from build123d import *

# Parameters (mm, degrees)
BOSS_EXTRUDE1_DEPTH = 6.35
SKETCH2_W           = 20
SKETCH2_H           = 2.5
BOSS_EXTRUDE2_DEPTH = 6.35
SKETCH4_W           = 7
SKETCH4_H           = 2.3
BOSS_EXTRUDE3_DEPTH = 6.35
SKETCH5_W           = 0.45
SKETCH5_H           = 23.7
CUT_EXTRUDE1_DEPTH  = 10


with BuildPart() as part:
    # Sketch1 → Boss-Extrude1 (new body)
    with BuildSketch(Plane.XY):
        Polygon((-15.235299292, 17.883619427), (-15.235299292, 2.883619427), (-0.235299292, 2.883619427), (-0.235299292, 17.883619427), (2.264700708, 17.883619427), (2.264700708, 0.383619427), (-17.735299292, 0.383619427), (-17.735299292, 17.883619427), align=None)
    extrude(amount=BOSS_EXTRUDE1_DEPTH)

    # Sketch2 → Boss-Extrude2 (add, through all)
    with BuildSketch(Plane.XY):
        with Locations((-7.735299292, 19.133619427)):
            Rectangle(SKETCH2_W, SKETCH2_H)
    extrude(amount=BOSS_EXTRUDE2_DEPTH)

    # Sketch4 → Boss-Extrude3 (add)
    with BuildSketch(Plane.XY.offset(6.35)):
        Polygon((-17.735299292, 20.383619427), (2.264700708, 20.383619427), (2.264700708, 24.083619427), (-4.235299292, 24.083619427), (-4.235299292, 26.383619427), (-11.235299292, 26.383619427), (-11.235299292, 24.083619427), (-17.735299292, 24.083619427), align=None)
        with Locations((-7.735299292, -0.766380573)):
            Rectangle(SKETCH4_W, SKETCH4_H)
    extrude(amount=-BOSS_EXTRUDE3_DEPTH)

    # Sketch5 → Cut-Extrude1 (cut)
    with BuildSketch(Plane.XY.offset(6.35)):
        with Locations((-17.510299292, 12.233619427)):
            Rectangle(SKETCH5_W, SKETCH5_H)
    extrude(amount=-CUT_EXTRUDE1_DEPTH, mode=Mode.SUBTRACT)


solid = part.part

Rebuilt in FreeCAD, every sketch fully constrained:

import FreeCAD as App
import Part
import Sketcher
Q = App.Units.Quantity


def add_polygon(sketch, points):
    """Adds a closed chain of lines whose ends are joined by coincident constraints."""
    first, n = sketch.GeometryCount, len(points)
    for a, b in zip(points, points[1:] + points[:1]):
        sketch.addGeometry(Part.LineSegment(App.Vector(*a, 0), App.Vector(*b, 0)), False)
    for i in range(n):
        sketch.addConstraint(Sketcher.Constraint("Coincident", first + i, 2, first + (i + 1) % n, 1))

doc = App.newDocument("Part")
body = doc.addObject("PartDesign::Body", "Body")

sketch1 = body.newObject("Sketcher::SketchObject", "Sketch")
sketch1.AttachmentSupport = (doc.getObject("XY_Plane"), [""])
sketch1.MapMode = "FlatFace"
add_polygon(sketch1, [(-15.2, 2.9), (-15.2, 17.9), (-17.7, 17.9), (-17.7, 0.4), (2.3, 0.4), (2.3, 17.9), (-0.2, 17.9), (-0.2, 2.9)])
sketch1.addConstraint([
    Sketcher.Constraint("Vertical", 0),
    Sketcher.Constraint("Horizontal", 1),
    Sketcher.Constraint("Vertical", 2),
    Sketcher.Constraint("Horizontal", 3),
    Sketcher.Constraint("Vertical", 4),
    Sketcher.Constraint("Horizontal", 5),
    Sketcher.Constraint("Vertical", 6),
    Sketcher.Constraint("Horizontal", 7),
    Sketcher.Constraint("Horizontal", 1, 2, 4, 2),
    Sketcher.Constraint("Equal", 1, 5),
    Sketcher.Constraint("Equal", 7, 0),
    Sketcher.Constraint("DistanceX", 3, 1, 3, 2, Q("20 mm")),
    Sketcher.Constraint("DistanceX", 7, 2, 7, 1, Q("15 mm")),
    Sketcher.Constraint("DistanceY", 2, 2, 2, 1, Q("17.5 mm")),
    Sketcher.Constraint("DistanceX", 0, 2, -1, 1, Q("15.235299 mm")),
    Sketcher.Constraint("DistanceY", -1, 1, 0, 2, Q("17.883619 mm")),
])
pad1 = body.newObject("PartDesign::Pad", "Pad")
pad1.Profile = sketch1
pad1.Length = 6.35

sketch2 = body.newObject("Sketcher::SketchObject", "Sketch001")
sketch2.AttachmentSupport = (doc.getObject("XY_Plane"), [""])
sketch2.MapMode = "FlatFace"
add_polygon(sketch2, [(-17.7, 20.4), (-17.7, 17.9), (2.3, 17.9), (2.3, 20.4)])
sketch2.addConstraint([
    Sketcher.Constraint("Vertical", 0),
    Sketcher.Constraint("Horizontal", 1),
    Sketcher.Constraint("Vertical", 2),
    Sketcher.Constraint("Horizontal", 3),
    Sketcher.Constraint("DistanceX", 1, 1, 1, 2, Q("20 mm")),
    Sketcher.Constraint("DistanceY", 0, 2, 0, 1, Q("2.5 mm")),
    Sketcher.Constraint("DistanceX", 0, 2, -1, 1, Q("17.735299 mm")),
    Sketcher.Constraint("DistanceY", -1, 1, 0, 2, Q("17.883619 mm")),
])
pad2 = body.newObject("PartDesign::Pad", "Pad001")
pad2.Profile = sketch2
pad2.Length = 6.35

sketch3 = body.newObject("Sketcher::SketchObject", "Sketch002")
sketch3.AttachmentSupport = (doc.getObject("XY_Plane"), [""])
sketch3.MapMode = "FlatFace"
sketch3.AttachmentOffset = App.Placement(App.Vector(0, 0, 6.35), App.Rotation())
add_polygon(sketch3, [(-17.7, 20.4), (2.3, 20.4), (2.3, 24.1), (-4.2, 24.1), (-4.2, 26.4), (-11.2, 26.4), (-11.2, 24.1), (-17.7, 24.1)])
add_polygon(sketch3, [(-11.2, 0.4), (-11.2, -1.9), (-4.2, -1.9), (-4.2, 0.4)])
sketch3.addConstraint([
    Sketcher.Constraint("Horizontal", 0),
    Sketcher.Constraint("Vertical", 1),
    Sketcher.Constraint("Horizontal", 2),
    Sketcher.Constraint("Vertical", 3),
    Sketcher.Constraint("Horizontal", 4),
    Sketcher.Constraint("Vertical", 5),
    Sketcher.Constraint("Horizontal", 6),
    Sketcher.Constraint("Vertical", 7),
    Sketcher.Constraint("Vertical", 8),
    Sketcher.Constraint("Horizontal", 9),
    Sketcher.Constraint("Vertical", 10),
    Sketcher.Constraint("Horizontal", 11),
    Sketcher.Constraint("Horizontal", 2, 2, 5, 2),
    Sketcher.Constraint("Vertical", 5, 2, 8, 2),
    Sketcher.Constraint("Vertical", 3, 2, 9, 2),
    Sketcher.Constraint("Equal", 2, 6),
    Sketcher.Constraint("Equal", 5, 8),
    Sketcher.Constraint("DistanceX", 0, 1, 0, 2, Q("20 mm")),
    Sketcher.Constraint("DistanceX", 4, 2, 4, 1, Q("7 mm")),
    Sketcher.Constraint("DistanceY", 1, 1, 1, 2, Q("3.7 mm")),
    Sketcher.Constraint("DistanceY", 3, 1, 3, 2, Q("2.3 mm")),
    Sketcher.Constraint("DistanceY", 8, 2, 5, 2, Q("26 mm")),
    Sketcher.Constraint("DistanceX", -1, 1, 0, 2, Q("2.264701 mm")),
    Sketcher.Constraint("DistanceY", -1, 1, 0, 2, Q("20.383619 mm")),
])
pad3 = body.newObject("PartDesign::Pad", "Pad002")
pad3.Profile = sketch3
pad3.Length = 6.35
pad3.Reversed = True

sketch4 = body.newObject("Sketcher::SketchObject", "Sketch003")
sketch4.AttachmentSupport = (doc.getObject("XY_Plane"), [""])
sketch4.MapMode = "FlatFace"
sketch4.AttachmentOffset = App.Placement(App.Vector(0, 0, 6.35), App.Rotation())
add_polygon(sketch4, [(-17.74, 24.08), (-17.74, 0.38), (-17.29, 0.38), (-17.29, 24.08)])
sketch4.addConstraint([
    Sketcher.Constraint("Vertical", 0),
    Sketcher.Constraint("Horizontal", 1),
    Sketcher.Constraint("Vertical", 2),
    Sketcher.Constraint("Horizontal", 3),
    Sketcher.Constraint("DistanceY", 0, 2, 0, 1, Q("23.7 mm")),
    Sketcher.Constraint("DistanceX", 1, 1, 1, 2, Q("0.45 mm")),
    Sketcher.Constraint("DistanceX", 0, 2, -1, 1, Q("17.735299 mm")),
    Sketcher.Constraint("DistanceY", -1, 1, 0, 2, Q("0.383619 mm")),
])
pocket1 = body.newObject("PartDesign::Pocket", "Pocket")
pocket1.Profile = sketch4
pocket1.Length = 10

doc.recompute()
